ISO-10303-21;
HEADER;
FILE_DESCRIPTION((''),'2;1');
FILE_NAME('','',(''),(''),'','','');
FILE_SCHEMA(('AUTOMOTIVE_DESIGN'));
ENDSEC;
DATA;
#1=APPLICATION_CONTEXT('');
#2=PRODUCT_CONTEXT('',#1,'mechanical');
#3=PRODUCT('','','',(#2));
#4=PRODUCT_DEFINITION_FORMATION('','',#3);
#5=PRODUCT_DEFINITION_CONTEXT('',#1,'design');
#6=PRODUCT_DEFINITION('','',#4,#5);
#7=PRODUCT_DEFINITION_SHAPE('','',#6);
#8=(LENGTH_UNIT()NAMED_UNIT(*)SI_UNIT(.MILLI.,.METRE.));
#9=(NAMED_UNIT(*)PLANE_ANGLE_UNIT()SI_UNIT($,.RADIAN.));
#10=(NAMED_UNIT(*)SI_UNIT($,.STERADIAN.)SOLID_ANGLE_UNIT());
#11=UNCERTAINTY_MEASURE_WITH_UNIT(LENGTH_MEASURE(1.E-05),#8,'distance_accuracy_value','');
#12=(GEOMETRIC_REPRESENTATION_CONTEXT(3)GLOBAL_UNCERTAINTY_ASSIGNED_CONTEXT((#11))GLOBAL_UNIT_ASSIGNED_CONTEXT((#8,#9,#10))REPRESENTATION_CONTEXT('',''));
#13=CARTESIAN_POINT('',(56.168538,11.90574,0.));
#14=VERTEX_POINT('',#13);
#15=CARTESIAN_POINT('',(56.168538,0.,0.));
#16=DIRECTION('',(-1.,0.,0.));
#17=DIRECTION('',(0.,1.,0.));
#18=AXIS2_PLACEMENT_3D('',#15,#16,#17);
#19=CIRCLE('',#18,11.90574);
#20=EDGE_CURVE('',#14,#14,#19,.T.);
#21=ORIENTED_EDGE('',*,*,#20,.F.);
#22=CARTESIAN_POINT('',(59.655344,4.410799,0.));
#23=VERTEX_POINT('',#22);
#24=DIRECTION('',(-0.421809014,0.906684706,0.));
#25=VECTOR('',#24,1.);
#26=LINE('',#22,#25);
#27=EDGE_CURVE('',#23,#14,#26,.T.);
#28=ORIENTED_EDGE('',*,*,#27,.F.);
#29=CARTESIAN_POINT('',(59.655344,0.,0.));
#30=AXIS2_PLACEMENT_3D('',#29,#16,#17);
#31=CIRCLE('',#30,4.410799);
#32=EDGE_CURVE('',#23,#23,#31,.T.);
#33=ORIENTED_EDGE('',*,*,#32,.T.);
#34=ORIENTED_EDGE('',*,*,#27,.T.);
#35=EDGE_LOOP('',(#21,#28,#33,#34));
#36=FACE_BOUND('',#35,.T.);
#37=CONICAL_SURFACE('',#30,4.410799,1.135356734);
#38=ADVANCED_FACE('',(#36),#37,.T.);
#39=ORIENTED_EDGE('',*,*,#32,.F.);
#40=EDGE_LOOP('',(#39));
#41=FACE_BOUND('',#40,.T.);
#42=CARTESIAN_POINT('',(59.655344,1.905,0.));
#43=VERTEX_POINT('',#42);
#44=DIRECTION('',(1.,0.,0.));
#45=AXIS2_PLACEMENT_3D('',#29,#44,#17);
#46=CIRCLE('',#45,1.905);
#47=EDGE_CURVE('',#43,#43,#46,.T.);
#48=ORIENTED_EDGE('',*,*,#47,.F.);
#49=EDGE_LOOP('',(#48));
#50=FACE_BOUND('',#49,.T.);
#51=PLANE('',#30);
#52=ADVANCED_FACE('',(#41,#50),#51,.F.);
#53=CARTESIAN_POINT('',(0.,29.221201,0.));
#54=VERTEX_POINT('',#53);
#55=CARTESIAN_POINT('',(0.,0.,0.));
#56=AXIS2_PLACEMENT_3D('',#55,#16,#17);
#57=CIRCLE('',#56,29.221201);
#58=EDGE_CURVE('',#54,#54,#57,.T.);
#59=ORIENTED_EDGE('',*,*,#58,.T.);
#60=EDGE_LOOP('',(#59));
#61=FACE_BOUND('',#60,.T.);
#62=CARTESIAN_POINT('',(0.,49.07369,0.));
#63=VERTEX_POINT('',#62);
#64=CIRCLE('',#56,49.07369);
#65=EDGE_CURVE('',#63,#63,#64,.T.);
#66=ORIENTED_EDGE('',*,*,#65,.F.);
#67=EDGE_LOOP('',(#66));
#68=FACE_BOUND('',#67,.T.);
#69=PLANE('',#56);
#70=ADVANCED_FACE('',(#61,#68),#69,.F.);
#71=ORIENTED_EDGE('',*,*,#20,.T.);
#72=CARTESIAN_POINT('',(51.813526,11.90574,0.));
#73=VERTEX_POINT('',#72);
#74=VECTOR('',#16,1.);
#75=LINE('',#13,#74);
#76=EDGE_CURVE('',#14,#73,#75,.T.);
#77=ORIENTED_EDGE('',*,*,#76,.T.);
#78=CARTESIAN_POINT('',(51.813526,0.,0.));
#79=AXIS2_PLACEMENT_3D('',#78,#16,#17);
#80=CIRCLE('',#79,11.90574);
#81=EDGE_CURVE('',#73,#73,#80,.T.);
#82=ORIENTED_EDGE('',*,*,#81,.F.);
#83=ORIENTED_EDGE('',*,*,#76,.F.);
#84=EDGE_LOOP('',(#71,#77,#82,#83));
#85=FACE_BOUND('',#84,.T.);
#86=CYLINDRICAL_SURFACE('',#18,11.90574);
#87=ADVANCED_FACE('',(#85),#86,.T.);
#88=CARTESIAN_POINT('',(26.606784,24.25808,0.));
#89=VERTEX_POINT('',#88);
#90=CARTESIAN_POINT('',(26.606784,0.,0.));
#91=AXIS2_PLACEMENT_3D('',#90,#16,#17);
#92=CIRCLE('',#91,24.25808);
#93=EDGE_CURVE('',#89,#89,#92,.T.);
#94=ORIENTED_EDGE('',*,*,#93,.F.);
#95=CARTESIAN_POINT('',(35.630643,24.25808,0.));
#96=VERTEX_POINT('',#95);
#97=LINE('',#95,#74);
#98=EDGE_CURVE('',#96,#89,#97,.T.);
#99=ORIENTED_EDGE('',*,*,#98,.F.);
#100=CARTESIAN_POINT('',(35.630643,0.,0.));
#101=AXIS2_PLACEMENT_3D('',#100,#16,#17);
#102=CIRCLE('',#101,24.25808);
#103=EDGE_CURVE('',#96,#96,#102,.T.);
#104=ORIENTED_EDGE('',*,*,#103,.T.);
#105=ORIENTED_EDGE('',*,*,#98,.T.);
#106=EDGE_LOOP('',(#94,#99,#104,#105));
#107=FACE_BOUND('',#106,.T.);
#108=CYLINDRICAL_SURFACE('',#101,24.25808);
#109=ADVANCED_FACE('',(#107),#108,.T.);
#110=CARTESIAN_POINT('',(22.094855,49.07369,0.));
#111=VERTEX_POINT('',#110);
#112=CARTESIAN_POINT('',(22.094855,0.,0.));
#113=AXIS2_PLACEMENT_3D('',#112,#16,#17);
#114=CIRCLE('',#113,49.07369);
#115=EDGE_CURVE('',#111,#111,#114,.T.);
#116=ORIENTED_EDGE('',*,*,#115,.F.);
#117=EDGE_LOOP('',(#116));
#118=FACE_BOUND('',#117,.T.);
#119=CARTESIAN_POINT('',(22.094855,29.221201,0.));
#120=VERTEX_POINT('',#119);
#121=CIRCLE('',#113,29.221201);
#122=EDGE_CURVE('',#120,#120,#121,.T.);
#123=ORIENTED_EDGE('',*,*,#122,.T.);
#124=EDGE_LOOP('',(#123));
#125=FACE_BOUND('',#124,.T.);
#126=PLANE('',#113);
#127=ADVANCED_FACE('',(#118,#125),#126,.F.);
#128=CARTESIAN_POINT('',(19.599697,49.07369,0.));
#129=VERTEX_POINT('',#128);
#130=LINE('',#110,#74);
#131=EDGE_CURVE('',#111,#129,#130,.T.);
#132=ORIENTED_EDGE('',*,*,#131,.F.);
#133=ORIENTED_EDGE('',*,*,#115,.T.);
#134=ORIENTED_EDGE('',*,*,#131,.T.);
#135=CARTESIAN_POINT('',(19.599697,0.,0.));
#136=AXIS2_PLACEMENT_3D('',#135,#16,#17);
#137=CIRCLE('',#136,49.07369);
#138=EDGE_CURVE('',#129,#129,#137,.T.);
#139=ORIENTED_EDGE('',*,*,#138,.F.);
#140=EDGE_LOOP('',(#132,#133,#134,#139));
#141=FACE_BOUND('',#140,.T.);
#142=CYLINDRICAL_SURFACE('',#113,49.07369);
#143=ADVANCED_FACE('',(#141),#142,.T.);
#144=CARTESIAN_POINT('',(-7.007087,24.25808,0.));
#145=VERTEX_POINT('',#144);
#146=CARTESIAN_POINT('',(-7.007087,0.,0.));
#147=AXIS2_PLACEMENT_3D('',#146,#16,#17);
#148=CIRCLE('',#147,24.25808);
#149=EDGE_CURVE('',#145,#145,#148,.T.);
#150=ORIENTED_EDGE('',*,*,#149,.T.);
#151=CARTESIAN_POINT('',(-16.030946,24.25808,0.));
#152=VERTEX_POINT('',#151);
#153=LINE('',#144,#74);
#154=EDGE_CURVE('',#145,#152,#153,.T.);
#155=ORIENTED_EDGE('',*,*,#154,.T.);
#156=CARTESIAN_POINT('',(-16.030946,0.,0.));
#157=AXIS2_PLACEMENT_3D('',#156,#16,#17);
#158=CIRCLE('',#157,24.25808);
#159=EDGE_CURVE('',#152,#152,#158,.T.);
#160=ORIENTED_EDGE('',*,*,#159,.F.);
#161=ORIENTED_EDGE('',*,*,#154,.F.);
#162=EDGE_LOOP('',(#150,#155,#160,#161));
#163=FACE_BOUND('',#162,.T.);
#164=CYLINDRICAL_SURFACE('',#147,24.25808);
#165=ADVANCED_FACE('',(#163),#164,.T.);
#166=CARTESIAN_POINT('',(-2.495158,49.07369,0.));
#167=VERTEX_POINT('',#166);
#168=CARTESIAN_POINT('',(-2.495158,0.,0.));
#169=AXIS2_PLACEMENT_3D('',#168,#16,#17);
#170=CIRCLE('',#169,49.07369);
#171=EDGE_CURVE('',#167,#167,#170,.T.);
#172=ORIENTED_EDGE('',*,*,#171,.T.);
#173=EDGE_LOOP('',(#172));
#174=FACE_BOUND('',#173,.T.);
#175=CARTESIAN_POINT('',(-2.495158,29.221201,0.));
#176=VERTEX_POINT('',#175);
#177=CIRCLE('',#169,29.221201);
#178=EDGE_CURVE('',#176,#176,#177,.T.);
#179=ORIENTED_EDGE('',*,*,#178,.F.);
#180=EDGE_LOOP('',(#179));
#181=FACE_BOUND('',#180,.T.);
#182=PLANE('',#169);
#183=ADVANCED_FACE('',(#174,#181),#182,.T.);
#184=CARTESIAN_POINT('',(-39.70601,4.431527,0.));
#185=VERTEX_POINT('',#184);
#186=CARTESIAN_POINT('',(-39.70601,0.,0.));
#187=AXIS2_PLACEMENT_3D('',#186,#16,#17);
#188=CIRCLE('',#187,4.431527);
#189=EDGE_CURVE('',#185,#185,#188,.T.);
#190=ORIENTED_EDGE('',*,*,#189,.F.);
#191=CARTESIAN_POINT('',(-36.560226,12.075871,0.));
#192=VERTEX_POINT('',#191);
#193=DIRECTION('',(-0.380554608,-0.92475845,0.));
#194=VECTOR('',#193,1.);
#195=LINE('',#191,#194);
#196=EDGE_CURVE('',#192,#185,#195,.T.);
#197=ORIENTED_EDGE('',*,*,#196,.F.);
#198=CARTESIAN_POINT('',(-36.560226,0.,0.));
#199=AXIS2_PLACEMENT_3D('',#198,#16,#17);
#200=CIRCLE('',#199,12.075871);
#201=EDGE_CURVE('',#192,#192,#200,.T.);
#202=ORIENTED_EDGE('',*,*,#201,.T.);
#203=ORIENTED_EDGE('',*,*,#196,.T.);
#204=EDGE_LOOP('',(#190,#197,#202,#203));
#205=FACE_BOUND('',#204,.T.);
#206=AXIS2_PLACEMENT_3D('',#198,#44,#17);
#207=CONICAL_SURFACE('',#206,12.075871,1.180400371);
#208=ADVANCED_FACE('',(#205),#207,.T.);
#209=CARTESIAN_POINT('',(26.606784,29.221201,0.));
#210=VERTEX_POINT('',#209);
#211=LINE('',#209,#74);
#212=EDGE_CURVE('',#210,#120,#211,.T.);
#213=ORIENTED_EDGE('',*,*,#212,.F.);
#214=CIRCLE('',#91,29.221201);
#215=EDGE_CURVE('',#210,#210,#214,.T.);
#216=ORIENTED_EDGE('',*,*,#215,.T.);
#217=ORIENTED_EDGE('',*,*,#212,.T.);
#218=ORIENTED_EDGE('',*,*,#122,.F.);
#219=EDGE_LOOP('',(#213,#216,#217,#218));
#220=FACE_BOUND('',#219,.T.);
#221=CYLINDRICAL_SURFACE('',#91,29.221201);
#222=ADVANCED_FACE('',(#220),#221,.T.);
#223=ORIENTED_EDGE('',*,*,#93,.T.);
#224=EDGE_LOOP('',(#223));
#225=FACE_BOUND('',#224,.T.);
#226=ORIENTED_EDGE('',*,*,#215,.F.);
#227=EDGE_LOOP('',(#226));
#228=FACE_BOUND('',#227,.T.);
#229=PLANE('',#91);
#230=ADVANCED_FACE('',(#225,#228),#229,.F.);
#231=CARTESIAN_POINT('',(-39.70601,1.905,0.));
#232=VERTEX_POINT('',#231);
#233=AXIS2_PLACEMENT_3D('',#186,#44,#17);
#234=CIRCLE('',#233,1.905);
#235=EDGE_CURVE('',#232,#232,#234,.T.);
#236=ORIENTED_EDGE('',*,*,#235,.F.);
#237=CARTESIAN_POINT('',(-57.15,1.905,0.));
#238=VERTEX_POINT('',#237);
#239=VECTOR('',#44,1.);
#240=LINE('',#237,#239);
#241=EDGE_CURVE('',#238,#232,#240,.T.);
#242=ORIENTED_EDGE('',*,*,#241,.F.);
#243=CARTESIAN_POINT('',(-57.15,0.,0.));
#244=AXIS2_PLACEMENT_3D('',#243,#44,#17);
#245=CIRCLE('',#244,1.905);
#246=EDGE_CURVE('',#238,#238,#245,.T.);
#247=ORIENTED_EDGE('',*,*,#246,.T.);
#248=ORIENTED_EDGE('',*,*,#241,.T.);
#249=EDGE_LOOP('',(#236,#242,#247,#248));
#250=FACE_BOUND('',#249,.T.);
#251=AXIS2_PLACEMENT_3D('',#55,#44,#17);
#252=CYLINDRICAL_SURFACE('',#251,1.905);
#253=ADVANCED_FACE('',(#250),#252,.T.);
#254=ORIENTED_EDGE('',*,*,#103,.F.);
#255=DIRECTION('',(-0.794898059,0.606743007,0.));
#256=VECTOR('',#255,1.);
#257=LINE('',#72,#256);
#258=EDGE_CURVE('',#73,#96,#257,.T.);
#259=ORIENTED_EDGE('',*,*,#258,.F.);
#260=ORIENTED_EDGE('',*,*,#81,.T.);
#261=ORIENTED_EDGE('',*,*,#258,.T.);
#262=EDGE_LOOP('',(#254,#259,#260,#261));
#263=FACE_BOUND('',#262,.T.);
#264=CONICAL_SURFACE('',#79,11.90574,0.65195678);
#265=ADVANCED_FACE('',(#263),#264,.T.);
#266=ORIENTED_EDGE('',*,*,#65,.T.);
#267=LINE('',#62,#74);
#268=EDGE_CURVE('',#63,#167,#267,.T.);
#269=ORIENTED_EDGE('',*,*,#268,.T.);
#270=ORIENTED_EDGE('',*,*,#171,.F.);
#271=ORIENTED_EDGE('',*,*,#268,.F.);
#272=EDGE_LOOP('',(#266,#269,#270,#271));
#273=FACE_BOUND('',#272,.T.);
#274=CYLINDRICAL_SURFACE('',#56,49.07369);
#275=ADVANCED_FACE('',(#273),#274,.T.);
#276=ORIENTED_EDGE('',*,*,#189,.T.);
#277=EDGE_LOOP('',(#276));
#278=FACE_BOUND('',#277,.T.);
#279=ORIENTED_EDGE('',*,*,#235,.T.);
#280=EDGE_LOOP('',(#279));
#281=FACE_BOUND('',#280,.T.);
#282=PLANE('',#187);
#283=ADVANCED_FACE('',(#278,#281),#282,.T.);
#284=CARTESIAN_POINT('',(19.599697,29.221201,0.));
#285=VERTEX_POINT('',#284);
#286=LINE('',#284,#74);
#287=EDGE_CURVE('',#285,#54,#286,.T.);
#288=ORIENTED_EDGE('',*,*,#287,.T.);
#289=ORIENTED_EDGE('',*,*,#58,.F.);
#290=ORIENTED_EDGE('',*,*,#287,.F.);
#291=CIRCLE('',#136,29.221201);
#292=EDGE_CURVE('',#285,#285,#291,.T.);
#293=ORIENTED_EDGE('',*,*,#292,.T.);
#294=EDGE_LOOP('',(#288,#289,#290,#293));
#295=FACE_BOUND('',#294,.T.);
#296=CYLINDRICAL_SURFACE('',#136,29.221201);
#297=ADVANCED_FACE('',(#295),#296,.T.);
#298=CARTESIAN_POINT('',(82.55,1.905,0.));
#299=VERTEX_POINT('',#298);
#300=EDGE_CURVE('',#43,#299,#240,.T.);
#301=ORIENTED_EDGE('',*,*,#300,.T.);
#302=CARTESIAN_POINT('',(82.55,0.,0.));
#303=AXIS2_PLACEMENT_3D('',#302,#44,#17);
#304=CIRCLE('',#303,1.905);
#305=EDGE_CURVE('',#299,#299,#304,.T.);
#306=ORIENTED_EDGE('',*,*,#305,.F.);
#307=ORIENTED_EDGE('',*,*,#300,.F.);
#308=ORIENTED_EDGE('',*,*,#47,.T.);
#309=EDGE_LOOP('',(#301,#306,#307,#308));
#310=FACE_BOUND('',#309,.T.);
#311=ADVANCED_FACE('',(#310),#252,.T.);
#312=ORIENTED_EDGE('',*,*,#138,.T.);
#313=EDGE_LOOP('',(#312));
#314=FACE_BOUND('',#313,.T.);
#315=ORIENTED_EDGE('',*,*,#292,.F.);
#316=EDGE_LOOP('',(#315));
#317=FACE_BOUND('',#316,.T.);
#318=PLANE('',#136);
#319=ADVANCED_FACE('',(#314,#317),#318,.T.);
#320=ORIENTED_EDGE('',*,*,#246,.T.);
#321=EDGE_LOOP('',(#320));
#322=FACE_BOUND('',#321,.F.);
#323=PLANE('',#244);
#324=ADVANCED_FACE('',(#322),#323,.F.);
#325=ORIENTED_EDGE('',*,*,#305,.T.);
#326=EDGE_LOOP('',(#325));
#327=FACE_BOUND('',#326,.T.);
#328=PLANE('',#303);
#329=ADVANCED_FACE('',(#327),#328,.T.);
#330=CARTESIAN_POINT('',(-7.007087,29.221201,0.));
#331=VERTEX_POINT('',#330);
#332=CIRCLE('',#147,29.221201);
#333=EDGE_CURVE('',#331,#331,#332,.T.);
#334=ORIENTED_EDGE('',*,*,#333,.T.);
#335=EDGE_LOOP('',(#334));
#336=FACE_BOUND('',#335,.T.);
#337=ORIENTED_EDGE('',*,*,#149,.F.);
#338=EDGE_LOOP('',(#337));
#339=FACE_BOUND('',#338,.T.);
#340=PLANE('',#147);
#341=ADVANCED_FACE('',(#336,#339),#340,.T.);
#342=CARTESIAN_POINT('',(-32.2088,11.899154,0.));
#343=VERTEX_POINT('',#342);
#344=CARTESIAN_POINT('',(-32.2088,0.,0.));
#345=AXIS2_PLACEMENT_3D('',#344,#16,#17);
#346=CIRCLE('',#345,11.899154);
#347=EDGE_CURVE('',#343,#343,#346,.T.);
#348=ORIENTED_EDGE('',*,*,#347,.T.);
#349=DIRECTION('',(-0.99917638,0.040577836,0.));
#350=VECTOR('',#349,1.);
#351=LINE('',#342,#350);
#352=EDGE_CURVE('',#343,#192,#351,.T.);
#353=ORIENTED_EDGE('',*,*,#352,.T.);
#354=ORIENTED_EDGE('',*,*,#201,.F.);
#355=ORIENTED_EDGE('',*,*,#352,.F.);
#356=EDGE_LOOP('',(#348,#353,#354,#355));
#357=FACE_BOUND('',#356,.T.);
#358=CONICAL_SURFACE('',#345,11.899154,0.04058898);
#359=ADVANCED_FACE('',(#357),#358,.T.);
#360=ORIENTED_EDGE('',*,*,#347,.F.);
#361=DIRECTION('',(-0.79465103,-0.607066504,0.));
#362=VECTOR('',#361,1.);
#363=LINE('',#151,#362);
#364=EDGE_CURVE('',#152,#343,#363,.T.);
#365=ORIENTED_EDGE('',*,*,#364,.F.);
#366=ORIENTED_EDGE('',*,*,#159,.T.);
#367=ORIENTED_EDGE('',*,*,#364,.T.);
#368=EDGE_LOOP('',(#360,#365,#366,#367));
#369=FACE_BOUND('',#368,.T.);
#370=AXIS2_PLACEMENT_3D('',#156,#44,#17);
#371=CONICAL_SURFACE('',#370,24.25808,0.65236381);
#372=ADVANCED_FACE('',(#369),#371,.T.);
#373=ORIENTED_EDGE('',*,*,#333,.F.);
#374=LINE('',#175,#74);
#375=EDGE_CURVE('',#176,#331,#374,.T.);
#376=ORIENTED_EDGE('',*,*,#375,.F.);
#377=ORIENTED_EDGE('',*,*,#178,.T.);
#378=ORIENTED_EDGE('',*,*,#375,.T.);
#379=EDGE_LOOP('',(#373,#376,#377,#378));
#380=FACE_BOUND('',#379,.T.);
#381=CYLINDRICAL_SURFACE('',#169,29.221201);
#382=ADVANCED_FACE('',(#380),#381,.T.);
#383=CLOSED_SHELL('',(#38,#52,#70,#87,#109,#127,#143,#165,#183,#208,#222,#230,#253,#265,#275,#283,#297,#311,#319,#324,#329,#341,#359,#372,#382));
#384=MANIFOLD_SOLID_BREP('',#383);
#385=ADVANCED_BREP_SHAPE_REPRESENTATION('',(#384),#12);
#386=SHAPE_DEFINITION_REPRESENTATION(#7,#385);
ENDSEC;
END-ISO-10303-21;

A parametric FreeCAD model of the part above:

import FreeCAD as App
import Part
import Sketcher
from FreeCAD import Vector
Q = App.Units.Quantity

doc = App.newDocument("Part")
body = doc.addObject("PartDesign::Body", "Body")

sketch1 = doc.addObject("Sketcher::SketchObject", "Sketch")
body.addObject(sketch1)
sketch1.AttachmentSupport = (doc.YZ_Plane, [""])
sketch1.MapMode = "FlatFace"
sketch1.addGeometry(Part.Circle(Vector(0, 0, 0), Vector(0, 0, 1), 1.9), False)
sketch1.addConstraint(Sketcher.Constraint("Coincident", 0, 3, -1, 1))
sketch1.addConstraint(Sketcher.Constraint("Diameter", 0, Q("0.15 in")))
pad1 = doc.addObject("PartDesign::Pad", "Pad")
body.addObject(pad1)
pad1.Profile = sketch1
pad1.Type = "TwoLengths"
pad1.Length = Q("3.25 in")
pad1.Length2 = Q("2.25 in")

sketch2 = doc.addObject("Sketcher::SketchObject", "Sketch001")
body.addObject(sketch2)
sketch2.AttachmentSupport = (doc.YZ_Plane, [""])
sketch2.MapMode = "FlatFace"
sketch2.addGeometry(Part.Circle(Vector(0, 0, 0), Vector(0, 0, 1), 1.9), False)
sketch2.addConstraint(Sketcher.Constraint("Coincident", 0, 3, -1, 1))
sketch2.addConstraint(Sketcher.Constraint("Diameter", 0, Q("0.15 in")))
pad2 = doc.addObject("PartDesign::Pad", "Pad001")
body.addObject(pad2)
pad2.Profile = sketch2
pad2.Length = Q("0.03 in")

sketch3 = doc.addObject("Sketcher::SketchObject", "Sketch002")
body.addObject(sketch3)
sketch3.AttachmentSupport = (doc.XY_Plane, [""])
sketch3.MapMode = "FlatFace"
sketch3.addGeometry(Part.LineSegment(Vector(-7, 24.3, 0), Vector(-16, 24.3, 0)), False)
sketch3.addGeometry(Part.LineSegment(Vector(-16, 24.3, 0), Vector(-32.2, 11.9, 0)), False)
sketch3.addGeometry(Part.LineSegment(Vector(-32.2, 11.9, 0), Vector(-36.6, 12.1, 0)), False)
sketch3.addGeometry(Part.LineSegment(Vector(-36.6, 12.1, 0), Vector(-39.7, 4.4, 0)), False)
sketch3.addGeometry(Part.LineSegment(Vector(-39.7, 4.4, 0), Vector(-39.7, 0, 0)), False)
sketch3.addGeometry(Part.LineSegment(Vector(-39.7, 0, 0), Vector(59.7, 0, 0)), False)
sketch3.addGeometry(Part.LineSegment(Vector(59.7, 0, 0), Vector(59.7, 4.4, 0)), False)
sketch3.addGeometry(Part.LineSegment(Vector(59.7, 4.4, 0), Vector(56.2, 11.9, 0)), False)
sketch3.addGeometry(Part.LineSegment(Vector(56.2, 11.9, 0), Vector(51.8, 11.9, 0)), False)
sketch3.addGeometry(Part.LineSegment(Vector(51.8, 11.9, 0), Vector(35.6, 24.3, 0)), False)
sketch3.addGeometry(Part.LineSegment(Vector(35.6, 24.3, 0), Vector(26.6, 24.3, 0)), False)
sketch3.addGeometry(Part.LineSegment(Vector(26.6, 24.3, 0), Vector(26.6, 29.2, 0)), False)
sketch3.addGeometry(Part.LineSegment(Vector(26.6, 29.2, 0), Vector(22.1, 29.2, 0)), False)
sketch3.addGeometry(Part.LineSegment(Vector(22.1, 29.2, 0), Vector(22.1, 49.1, 0)), False)
sketch3.addGeometry(Part.LineSegment(Vector(22.1, 49.1, 0), Vector(19.6, 49.1, 0)), False)
sketch3.addGeometry(Part.LineSegment(Vector(19.6, 49.1, 0), Vector(19.6, 29.2, 0)), False)
sketch3.addGeometry(Part.LineSegment(Vector(19.6, 29.2, 0), Vector(0, 29.2, 0)), False)
sketch3.addGeometry(Part.LineSegment(Vector(0, 29.2, 0), Vector(0, 49.1, 0)), False)
sketch3.addGeometry(Part.LineSegment(Vector(0, 49.1, 0), Vector(-2.5, 49.1, 0)), False)
sketch3.addGeometry(Part.LineSegment(Vector(-2.5, 49.1, 0), Vector(-2.5, 29.2, 0)), False)
sketch3.addGeometry(Part.LineSegment(Vector(-2.5, 29.2, 0), Vector(-7, 29.2, 0)), False)
sketch3.addGeometry(Part.LineSegment(Vector(-7, 29.2, 0), Vector(-7, 24.3, 0)), False)
sketch3.addConstraint(Sketcher.Constraint("Coincident", 0, 2, 1, 1))
sketch3.addConstraint(Sketcher.Constraint("Coincident", 1, 2, 2, 1))
sketch3.addConstraint(Sketcher.Constraint("Coincident", 2, 2, 3, 1))
sketch3.addConstraint(Sketcher.Constraint("Coincident", 3, 2, 4, 1))
sketch3.addConstraint(Sketcher.Constraint("Coincident", 4, 2, 5, 1))
sketch3.addConstraint(Sketcher.Constraint("Coincident", 5, 2, 6, 1))
sketch3.addConstraint(Sketcher.Constraint("Coincident", 6, 2, 7, 1))
sketch3.addConstraint(Sketcher.Constraint("Coincident", 7, 2, 8, 1))
sketch3.addConstraint(Sketcher.Constraint("Coincident", 8, 2, 9, 1))
sketch3.addConstraint(Sketcher.Constraint("Coincident", 9, 2, 10, 1))
sketch3.addConstraint(Sketcher.Constraint("Coincident", 10, 2, 11, 1))
sketch3.addConstraint(Sketcher.Constraint("Coincident", 11, 2, 12, 1))
sketch3.addConstraint(Sketcher.Constraint("Coincident", 12, 2, 13, 1))
sketch3.addConstraint(Sketcher.Constraint("Coincident", 13, 2, 14, 1))
sketch3.addConstraint(Sketcher.Constraint("Coincident", 14, 2, 15, 1))
sketch3.addConstraint(Sketcher.Constraint("Coincident", 15, 2, 16, 1))
sketch3.addConstraint(Sketcher.Constraint("Coincident", 16, 2, 17, 1))
sketch3.addConstraint(Sketcher.Constraint("Coincident", 17, 2, 18, 1))
sketch3.addConstraint(Sketcher.Constraint("Coincident", 18, 2, 19, 1))
sketch3.addConstraint(Sketcher.Constraint("Coincident", 19, 2, 20, 1))
sketch3.addConstraint(Sketcher.Constraint("Coincident", 20, 2, 21, 1))
sketch3.addConstraint(Sketcher.Constraint("Coincident", 21, 2, 0, 1))
sketch3.addConstraint(Sketcher.Constraint("Horizontal", 0))
sketch3.addConstraint(Sketcher.Constraint("Vertical", 4))
sketch3.addConstraint(Sketcher.Constraint("Horizontal", 5))
sketch3.addConstraint(Sketcher.Constraint("Vertical", 6))
sketch3.addConstraint(Sketcher.Constraint("Horizontal", 8))
sketch3.addConstraint(Sketcher.Constraint("Horizontal", 10))
sketch3.addConstraint(Sketcher.Constraint("Vertical", 11))
sketch3.addConstraint(Sketcher.Constraint("Horizontal", 12))
sketch3.addConstraint(Sketcher.Constraint("Vertical", 13))
sketch3.addConstraint(Sketcher.Constraint("Horizontal", 14))
sketch3.addConstraint(Sketcher.Constraint("Vertical", 15))
sketch3.addConstraint(Sketcher.Constraint("Horizontal", 16))
sketch3.addConstraint(Sketcher.Constraint("Vertical", 17))
sketch3.addConstraint(Sketcher.Constraint("Horizontal", 18))
sketch3.addConstraint(Sketcher.Constraint("Vertical", 19))
sketch3.addConstraint(Sketcher.Constraint("Horizontal", 20))
sketch3.addConstraint(Sketcher.Constraint("Vertical", 21))
sketch3.addConstraint(Sketcher.Constraint("PointOnObject", 4, 2, -1))
sketch3.addConstraint(Sketcher.Constraint("PointOnObject", 16, 2, -2))
sketch3.addConstraint(Sketcher.Constraint("Horizontal", 0, 2, 9, 2))
sketch3.addConstraint(Sketcher.Constraint("Horizontal", 12, 2, 15, 2))
sketch3.addConstraint(Sketcher.Constraint("Horizontal", 14, 2, 17, 2))
sketch3.addConstraint(Sketcher.Constraint("Horizontal", 16, 2, 19, 2))
sketch3.addConstraint(Sketcher.Constraint("Equal", 0, 10))
sketch3.addConstraint(Sketcher.Constraint("Equal", 14, 18))
sketch3.addConstraint(Sketcher.Constraint("Equal", 12, 20))
sketch3.addConstraint(Sketcher.Constraint("Equal", 3, 7))
sketch3.addConstraint(Sketcher.Constraint("Equal", 1, 9))
sketch3.addConstraint(Sketcher.Constraint("DistanceY", 6, 1, 6, 2, 4.410799))
sketch3.addConstraint(Sketcher.Constraint("DistanceX", 0, 2, 0, 1, 9.023859))
sketch3.addConstraint(Sketcher.Constraint("DistanceX", 8, 2, 8, 1, 4.355012))
sketch3.addConstraint(Sketcher.Constraint("DistanceX", 12, 2, 12, 1, 4.511929))
sketch3.addConstraint(Sketcher.Constraint("DistanceX", 14, 2, 14, 1, 2.495158))
sketch3.addConstraint(Sketcher.Constraint("DistanceY", 11, 1, 11, 2, 4.963121))
sketch3.addConstraint(Sketcher.Constraint("DistanceY", 13, 1, 13, 2, 19.852489))
sketch3.addConstraint(Sketcher.Constraint("DistanceX", 1, 2, -1, 1, 32.2088))
sketch3.addConstraint(Sketcher.Constraint("DistanceY", -1, 1, 11, 2, 29.221201))
sketch3.addConstraint(Sketcher.Constraint("DistanceX", 9, 2, 6, 2, 24.024701))
sketch3.addConstraint(Sketcher.Constraint("DistanceX", 0, 2, 13, 2, 38.125801))
sketch3.addConstraint(Sketcher.Constraint("Distance", 1, 20.358438))
sketch3.addConstraint(Sketcher.Constraint("DistanceX", 5, 1, 5, 2, 99.361354))
sketch3.addConstraint(Sketcher.Constraint("DistanceY", 4, 2, 4, 1, 4.431527))
sketch3.addConstraint(Sketcher.Constraint("DistanceY", -1, 1, 2, 2, 12.075871))
sketch3.addConstraint(Sketcher.Constraint("DistanceY", -1, 1, 7, 2, 11.90574))
revolution = doc.addObject("PartDesign::Revolution", "Revolution")
body.addObject(revolution)
revolution.Profile = sketch3
revolution.ReferenceAxis = (sketch3, ["H_Axis"])
revolution.Angle = 360

doc.recompute()
